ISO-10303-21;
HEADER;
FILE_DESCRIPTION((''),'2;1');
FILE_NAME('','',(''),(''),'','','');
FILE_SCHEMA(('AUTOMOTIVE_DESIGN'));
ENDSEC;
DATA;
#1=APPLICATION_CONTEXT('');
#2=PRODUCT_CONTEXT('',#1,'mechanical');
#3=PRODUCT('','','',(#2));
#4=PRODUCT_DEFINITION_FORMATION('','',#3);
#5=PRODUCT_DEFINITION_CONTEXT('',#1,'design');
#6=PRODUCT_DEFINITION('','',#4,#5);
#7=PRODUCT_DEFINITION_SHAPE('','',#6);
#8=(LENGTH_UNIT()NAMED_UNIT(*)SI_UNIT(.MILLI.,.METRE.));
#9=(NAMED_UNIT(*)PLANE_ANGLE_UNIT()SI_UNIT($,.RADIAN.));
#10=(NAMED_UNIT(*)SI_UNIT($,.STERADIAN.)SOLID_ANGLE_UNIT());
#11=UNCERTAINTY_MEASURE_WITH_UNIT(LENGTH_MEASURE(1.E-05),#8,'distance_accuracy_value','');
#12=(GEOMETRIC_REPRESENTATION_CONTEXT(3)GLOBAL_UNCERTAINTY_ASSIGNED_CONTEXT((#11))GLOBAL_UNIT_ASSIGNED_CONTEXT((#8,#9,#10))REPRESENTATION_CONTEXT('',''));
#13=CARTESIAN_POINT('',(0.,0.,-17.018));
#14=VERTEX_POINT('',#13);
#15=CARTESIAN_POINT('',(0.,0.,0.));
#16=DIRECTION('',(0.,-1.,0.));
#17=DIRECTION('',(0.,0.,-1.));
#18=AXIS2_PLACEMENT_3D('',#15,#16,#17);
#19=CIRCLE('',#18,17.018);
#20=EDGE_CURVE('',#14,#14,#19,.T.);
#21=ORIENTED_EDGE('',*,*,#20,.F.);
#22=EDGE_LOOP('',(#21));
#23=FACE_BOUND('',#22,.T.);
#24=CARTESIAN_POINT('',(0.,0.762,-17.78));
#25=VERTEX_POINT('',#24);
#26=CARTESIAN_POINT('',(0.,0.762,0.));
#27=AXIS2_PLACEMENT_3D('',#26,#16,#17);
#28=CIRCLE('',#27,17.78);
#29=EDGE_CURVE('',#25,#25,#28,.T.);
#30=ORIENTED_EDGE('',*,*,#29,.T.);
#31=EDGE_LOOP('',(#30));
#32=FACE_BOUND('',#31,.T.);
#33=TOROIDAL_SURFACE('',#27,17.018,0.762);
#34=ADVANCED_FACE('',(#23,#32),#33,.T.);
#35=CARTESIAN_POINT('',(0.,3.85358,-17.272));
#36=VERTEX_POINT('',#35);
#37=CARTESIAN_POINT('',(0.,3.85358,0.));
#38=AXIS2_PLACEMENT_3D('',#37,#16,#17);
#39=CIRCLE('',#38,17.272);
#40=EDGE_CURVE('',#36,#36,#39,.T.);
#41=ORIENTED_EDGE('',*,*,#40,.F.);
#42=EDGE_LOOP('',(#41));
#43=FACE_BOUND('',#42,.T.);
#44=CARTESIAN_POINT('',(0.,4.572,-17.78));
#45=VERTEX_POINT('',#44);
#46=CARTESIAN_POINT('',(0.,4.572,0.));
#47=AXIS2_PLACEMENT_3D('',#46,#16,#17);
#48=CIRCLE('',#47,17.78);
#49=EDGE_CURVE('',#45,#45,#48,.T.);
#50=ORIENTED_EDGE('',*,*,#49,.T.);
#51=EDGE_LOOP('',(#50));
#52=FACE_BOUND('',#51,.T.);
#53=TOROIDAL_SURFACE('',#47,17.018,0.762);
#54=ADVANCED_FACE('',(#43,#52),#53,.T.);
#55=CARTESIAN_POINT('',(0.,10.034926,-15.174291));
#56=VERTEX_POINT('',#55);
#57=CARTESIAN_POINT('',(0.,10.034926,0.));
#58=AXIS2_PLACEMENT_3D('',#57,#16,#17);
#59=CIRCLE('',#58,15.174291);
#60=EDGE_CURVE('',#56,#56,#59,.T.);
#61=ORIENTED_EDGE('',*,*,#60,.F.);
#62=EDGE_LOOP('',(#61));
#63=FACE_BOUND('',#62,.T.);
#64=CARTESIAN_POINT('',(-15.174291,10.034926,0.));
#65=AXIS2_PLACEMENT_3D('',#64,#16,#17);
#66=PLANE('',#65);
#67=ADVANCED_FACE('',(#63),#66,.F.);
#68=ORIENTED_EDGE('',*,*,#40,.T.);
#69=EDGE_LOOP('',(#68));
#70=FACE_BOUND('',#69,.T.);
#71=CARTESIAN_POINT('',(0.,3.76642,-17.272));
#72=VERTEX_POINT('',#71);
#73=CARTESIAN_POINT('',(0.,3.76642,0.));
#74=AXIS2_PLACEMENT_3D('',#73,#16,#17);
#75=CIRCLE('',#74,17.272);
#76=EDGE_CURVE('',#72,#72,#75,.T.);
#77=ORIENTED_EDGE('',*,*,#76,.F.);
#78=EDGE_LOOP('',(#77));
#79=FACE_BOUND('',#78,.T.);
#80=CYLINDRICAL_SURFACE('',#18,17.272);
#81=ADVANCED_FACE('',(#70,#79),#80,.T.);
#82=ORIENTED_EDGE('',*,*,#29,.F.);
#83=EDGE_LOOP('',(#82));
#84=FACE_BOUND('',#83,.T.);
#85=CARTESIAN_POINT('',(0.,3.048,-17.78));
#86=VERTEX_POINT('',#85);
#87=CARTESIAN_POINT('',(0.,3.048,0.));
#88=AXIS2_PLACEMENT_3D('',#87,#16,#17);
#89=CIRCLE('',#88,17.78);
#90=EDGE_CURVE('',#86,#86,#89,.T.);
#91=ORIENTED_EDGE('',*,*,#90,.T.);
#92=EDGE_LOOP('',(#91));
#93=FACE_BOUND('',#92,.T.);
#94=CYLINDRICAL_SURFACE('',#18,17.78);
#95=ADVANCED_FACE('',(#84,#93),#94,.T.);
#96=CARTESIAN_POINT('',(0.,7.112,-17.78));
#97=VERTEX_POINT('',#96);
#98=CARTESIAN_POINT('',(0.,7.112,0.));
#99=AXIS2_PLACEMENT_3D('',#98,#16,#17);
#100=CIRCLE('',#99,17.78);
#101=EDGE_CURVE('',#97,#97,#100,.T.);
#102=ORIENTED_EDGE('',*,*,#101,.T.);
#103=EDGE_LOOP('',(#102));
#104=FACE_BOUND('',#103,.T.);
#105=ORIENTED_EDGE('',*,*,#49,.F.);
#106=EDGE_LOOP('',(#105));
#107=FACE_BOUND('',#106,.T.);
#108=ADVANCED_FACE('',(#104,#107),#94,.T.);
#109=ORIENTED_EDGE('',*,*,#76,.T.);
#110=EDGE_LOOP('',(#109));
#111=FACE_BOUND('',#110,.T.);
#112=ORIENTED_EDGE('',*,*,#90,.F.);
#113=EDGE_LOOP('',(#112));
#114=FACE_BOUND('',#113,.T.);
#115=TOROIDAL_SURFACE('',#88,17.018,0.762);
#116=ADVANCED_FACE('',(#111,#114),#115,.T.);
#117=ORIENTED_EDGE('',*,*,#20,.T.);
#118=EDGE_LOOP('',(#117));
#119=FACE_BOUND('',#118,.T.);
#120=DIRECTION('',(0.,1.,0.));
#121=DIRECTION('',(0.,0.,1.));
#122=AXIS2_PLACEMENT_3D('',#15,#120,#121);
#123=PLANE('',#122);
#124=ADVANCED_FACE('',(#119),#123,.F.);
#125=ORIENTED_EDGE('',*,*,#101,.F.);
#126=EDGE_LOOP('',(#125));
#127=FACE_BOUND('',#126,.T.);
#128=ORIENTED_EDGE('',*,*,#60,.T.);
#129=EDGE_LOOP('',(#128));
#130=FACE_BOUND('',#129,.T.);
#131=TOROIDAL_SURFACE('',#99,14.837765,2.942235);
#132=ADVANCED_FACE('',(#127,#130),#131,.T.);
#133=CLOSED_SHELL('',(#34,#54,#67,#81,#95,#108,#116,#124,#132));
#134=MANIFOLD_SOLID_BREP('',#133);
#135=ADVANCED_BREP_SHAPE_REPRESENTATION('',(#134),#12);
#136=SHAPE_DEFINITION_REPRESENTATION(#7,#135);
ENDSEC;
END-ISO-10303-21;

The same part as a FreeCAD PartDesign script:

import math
import FreeCAD as App
import Part
import Sketcher

V = App.Vector
Q = App.Units.Quantity

doc = App.newDocument("Part")
params = doc.addObject("Spreadsheet::Sheet", "Params")
for row, (alias, value) in enumerate([
    ("sketch1_radius", "0.03 in"),
    ("sketch1_height", "0.1 in"),
    ("sketch1_width", "0.67 in"),
    ("sketch1_height2", "0.09 in"),
    ("revolution_angle", "360 deg"),
], start=1):
    params.set(f"A{row}", alias)
    params.set(f"B{row}", "=" + value)
    params.setAlias(f"B{row}", alias)

body = doc.addObject("PartDesign::Body", "Body")

sketch1 = body.newObject("Sketcher::SketchObject", "Sketch")
sketch1.AttachmentSupport = (doc.getObject("XY_Plane"), [""])
sketch1.MapMode = "FlatFace"
sketch1.addGeometry([
    Part.LineSegment(V(0, 0, 0), V(0, 10.03, 0)),
    Part.LineSegment(V(0, 10.03, 0), V(-15.17, 10.03, 0)),
    Part.ArcOfCircle(Part.Circle(V(-14.84, 7.11, 0), V(0, 0, 1), 2.94), math.radians(97), math.radians(180)),
    Part.LineSegment(V(-17.78, 7.11, 0), V(-17.78, 4.57, 0)),
    Part.ArcOfCircle(Part.Circle(V(-17.02, 4.57, 0), V(0, 0, 1), 0.76), math.radians(180), math.radians(251)),
    Part.LineSegment(V(-17.27, 3.85, 0), V(-17.27, 3.77, 0)),
    Part.ArcOfCircle(Part.Circle(V(-17.02, 3.05, 0), V(0, 0, 1), 0.76), math.radians(109), math.radians(180)),
    Part.LineSegment(V(-17.78, 3.05, 0), V(-17.78, 0.76, 0)),
    Part.ArcOfCircle(Part.Circle(V(-17.02, 0.76, 0), V(0, 0, 1), 0.76), math.radians(-180), math.radians(-90)),
    Part.LineSegment(V(-17.02, 0, 0), V(0, 0, 0)),
], False)
sketch1.addConstraint([
    Sketcher.Constraint("Coincident", 0, 2, 1, 1),
    Sketcher.Constraint("Coincident", 1, 2, 2, 1),
    Sketcher.Constraint("Tangent", 2, 2, 3, 1),
    Sketcher.Constraint("Tangent", 3, 2, 4, 1),
    Sketcher.Constraint("Coincident", 4, 2, 5, 1),
    Sketcher.Constraint("Coincident", 5, 2, 6, 1),
    Sketcher.Constraint("Tangent", 6, 2, 7, 1),
    Sketcher.Constraint("Tangent", 7, 2, 8, 1),
    Sketcher.Constraint("Tangent", 8, 2, 9, 1),
    Sketcher.Constraint("Coincident", 9, 2, 0, 1),
    Sketcher.Constraint("Vertical", 0),
    Sketcher.Constraint("Horizontal", 1),
    Sketcher.Constraint("Vertical", 3),
    Sketcher.Constraint("Vertical", 5),
    Sketcher.Constraint("Vertical", 7),
    Sketcher.Constraint("Horizontal", 9),
    Sketcher.Constraint("Coincident", 9, 2, -1, 1),
    Sketcher.Constraint("Equal", 4, 6),
    Sketcher.Constraint("Equal", 6, 8),
    Sketcher.Constraint("Vertical", 4, 3, 6, 3),
    Sketcher.Constraint("Radius", 4, Q("0.03 in")),
    Sketcher.Constraint("DistanceY", 3, 2, 3, 1, Q("0.1 in")),
    Sketcher.Constraint("DistanceX", 9, 1, 9, 2, Q("0.67 in")),
    Sketcher.Constraint("DistanceY", 7, 2, 7, 1, Q("0.09 in")),
    Sketcher.Constraint("DistanceY", -1, 1, 2, 3, Q("0.28 in")),
    Sketcher.Constraint("DistanceX", 4, 2, -1, 1, Q("0.68 in")),
    Sketcher.Constraint("Radius", 2, Q("2.942235 mm")),
    Sketcher.Constraint("DistanceX", 1, 2, 1, 1, Q("15.174291 mm")),
])
sketch1.setExpression("Constraints[20]", "Params.sketch1_radius")
sketch1.setExpression("Constraints[21]", "Params.sketch1_height")
sketch1.setExpression("Constraints[22]", "Params.sketch1_width")
sketch1.setExpression("Constraints[23]", "Params.sketch1_height2")
revolution = body.newObject("PartDesign::Revolution", "Revolution")
revolution.Profile = sketch1
revolution.ReferenceAxis = (sketch1, ["V_Axis"])
revolution.setExpression("Angle", "Params.revolution_angle")

doc.recompute()
